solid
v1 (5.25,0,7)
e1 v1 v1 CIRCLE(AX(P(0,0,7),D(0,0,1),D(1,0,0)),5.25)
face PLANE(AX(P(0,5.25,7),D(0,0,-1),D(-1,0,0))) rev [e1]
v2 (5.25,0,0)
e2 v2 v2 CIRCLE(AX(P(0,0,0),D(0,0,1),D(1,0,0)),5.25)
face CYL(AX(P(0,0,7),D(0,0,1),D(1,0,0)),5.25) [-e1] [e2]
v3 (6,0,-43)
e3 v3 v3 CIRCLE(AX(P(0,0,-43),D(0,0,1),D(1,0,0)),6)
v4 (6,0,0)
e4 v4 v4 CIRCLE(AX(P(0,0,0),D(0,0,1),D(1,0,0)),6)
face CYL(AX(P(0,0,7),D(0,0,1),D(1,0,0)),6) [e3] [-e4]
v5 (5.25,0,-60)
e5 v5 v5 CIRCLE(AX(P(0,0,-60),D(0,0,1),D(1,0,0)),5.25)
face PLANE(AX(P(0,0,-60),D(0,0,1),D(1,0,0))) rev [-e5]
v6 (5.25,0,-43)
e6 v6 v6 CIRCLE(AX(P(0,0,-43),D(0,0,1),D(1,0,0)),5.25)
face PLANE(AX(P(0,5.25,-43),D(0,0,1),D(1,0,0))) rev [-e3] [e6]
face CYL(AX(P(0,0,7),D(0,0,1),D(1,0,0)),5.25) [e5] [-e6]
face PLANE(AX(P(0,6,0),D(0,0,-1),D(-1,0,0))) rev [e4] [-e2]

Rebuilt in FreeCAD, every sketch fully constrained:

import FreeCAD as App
import Part
import Sketcher
Q = App.Units.Quantity

doc = App.newDocument("Part")
params = doc.addObject("Spreadsheet::Sheet", "Params")
for row, (alias, value) in enumerate([
    ("sketch1_height", "67 mm"),
    ("sketch1_height2", "17 mm"),
    ("sketch1_height3", "43 mm"),
    ("sketch1_width", "5.25 mm"),
    ("revolution_angle", "360 deg"),
], start=1):
    params.set(f"A{row}", alias)
    params.set(f"B{row}", "=" + value)
    params.setAlias(f"B{row}", alias)

body = doc.addObject("PartDesign::Body", "Body")

# Sketch on YZ plane
sketch1 = doc.addObject("Sketcher::SketchObject", "Sketch")
body.addObject(sketch1)
sketch1.AttachmentSupport = (doc.YZ_Plane, [""])
sketch1.MapMode = "FlatFace"
sketch1.addGeometry([
    Part.LineSegment(App.Vector(0, 7, 0), App.Vector(0, -60, 0)),  # 0
    Part.LineSegment(App.Vector(0, -60, 0), App.Vector(5.25, -60, 0)),  # 1
    Part.LineSegment(App.Vector(5.25, -60, 0), App.Vector(5.25, -43, 0)),  # 2
    Part.LineSegment(App.Vector(5.25, -43, 0), App.Vector(6, -43, 0)),  # 3
    Part.LineSegment(App.Vector(6, -43, 0), App.Vector(6, 0, 0)),  # 4
    Part.LineSegment(App.Vector(6, 0, 0), App.Vector(5.25, 0, 0)),  # 5
    Part.LineSegment(App.Vector(5.25, 0, 0), App.Vector(5.25, 7, 0)),  # 6
    Part.LineSegment(App.Vector(5.25, 7, 0), App.Vector(0, 7, 0)),  # 7
], False)
sketch1.addConstraint([
    Sketcher.Constraint("Coincident", 0, 2, 1, 1),
    Sketcher.Constraint("Coincident", 1, 2, 2, 1),
    Sketcher.Constraint("Coincident", 2, 2, 3, 1),
    Sketcher.Constraint("Coincident", 3, 2, 4, 1),
    Sketcher.Constraint("Coincident", 4, 2, 5, 1),
    Sketcher.Constraint("Coincident", 5, 2, 6, 1),
    Sketcher.Constraint("Coincident", 6, 2, 7, 1),
    Sketcher.Constraint("Coincident", 7, 2, 0, 1),
    Sketcher.Constraint("Vertical", 0),
    Sketcher.Constraint("Horizontal", 1),
    Sketcher.Constraint("Vertical", 2),
    Sketcher.Constraint("Horizontal", 3),
    Sketcher.Constraint("Vertical", 4),
    Sketcher.Constraint("Horizontal", 5),
    Sketcher.Constraint("Vertical", 6),
    Sketcher.Constraint("Horizontal", 7),
    Sketcher.Constraint("PointOnObject", 0, 2, -2),
    Sketcher.Constraint("PointOnObject", 4, 2, -1),
    Sketcher.Constraint("Vertical", 2, 2, 5, 2),
    Sketcher.Constraint("DistanceY", 0, 2, 0, 1, Q("67 mm")),
    Sketcher.Constraint("DistanceY", 2, 1, 2, 2, Q("17 mm")),
    Sketcher.Constraint("DistanceY", 4, 1, 4, 2, Q("43 mm")),
    Sketcher.Constraint("DistanceX", -1, 1, 3, 2, Q("6 mm")),
    Sketcher.Constraint("DistanceX", 1, 1, 1, 2, Q("5.25 mm")),
])
sketch1.setExpression("Constraints[19]", "Params.sketch1_height")
sketch1.setExpression("Constraints[20]", "Params.sketch1_height2")
sketch1.setExpression("Constraints[21]", "Params.sketch1_height3")
sketch1.setExpression("Constraints[23]", "Params.sketch1_width")
revolution = doc.addObject("PartDesign::Revolution", "Revolution")
body.addObject(revolution)
revolution.Profile = sketch1
revolution.ReferenceAxis = (sketch1, ["V_Axis"])
revolution.setExpression("Angle", "Params.revolution_angle")

doc.recompute()
